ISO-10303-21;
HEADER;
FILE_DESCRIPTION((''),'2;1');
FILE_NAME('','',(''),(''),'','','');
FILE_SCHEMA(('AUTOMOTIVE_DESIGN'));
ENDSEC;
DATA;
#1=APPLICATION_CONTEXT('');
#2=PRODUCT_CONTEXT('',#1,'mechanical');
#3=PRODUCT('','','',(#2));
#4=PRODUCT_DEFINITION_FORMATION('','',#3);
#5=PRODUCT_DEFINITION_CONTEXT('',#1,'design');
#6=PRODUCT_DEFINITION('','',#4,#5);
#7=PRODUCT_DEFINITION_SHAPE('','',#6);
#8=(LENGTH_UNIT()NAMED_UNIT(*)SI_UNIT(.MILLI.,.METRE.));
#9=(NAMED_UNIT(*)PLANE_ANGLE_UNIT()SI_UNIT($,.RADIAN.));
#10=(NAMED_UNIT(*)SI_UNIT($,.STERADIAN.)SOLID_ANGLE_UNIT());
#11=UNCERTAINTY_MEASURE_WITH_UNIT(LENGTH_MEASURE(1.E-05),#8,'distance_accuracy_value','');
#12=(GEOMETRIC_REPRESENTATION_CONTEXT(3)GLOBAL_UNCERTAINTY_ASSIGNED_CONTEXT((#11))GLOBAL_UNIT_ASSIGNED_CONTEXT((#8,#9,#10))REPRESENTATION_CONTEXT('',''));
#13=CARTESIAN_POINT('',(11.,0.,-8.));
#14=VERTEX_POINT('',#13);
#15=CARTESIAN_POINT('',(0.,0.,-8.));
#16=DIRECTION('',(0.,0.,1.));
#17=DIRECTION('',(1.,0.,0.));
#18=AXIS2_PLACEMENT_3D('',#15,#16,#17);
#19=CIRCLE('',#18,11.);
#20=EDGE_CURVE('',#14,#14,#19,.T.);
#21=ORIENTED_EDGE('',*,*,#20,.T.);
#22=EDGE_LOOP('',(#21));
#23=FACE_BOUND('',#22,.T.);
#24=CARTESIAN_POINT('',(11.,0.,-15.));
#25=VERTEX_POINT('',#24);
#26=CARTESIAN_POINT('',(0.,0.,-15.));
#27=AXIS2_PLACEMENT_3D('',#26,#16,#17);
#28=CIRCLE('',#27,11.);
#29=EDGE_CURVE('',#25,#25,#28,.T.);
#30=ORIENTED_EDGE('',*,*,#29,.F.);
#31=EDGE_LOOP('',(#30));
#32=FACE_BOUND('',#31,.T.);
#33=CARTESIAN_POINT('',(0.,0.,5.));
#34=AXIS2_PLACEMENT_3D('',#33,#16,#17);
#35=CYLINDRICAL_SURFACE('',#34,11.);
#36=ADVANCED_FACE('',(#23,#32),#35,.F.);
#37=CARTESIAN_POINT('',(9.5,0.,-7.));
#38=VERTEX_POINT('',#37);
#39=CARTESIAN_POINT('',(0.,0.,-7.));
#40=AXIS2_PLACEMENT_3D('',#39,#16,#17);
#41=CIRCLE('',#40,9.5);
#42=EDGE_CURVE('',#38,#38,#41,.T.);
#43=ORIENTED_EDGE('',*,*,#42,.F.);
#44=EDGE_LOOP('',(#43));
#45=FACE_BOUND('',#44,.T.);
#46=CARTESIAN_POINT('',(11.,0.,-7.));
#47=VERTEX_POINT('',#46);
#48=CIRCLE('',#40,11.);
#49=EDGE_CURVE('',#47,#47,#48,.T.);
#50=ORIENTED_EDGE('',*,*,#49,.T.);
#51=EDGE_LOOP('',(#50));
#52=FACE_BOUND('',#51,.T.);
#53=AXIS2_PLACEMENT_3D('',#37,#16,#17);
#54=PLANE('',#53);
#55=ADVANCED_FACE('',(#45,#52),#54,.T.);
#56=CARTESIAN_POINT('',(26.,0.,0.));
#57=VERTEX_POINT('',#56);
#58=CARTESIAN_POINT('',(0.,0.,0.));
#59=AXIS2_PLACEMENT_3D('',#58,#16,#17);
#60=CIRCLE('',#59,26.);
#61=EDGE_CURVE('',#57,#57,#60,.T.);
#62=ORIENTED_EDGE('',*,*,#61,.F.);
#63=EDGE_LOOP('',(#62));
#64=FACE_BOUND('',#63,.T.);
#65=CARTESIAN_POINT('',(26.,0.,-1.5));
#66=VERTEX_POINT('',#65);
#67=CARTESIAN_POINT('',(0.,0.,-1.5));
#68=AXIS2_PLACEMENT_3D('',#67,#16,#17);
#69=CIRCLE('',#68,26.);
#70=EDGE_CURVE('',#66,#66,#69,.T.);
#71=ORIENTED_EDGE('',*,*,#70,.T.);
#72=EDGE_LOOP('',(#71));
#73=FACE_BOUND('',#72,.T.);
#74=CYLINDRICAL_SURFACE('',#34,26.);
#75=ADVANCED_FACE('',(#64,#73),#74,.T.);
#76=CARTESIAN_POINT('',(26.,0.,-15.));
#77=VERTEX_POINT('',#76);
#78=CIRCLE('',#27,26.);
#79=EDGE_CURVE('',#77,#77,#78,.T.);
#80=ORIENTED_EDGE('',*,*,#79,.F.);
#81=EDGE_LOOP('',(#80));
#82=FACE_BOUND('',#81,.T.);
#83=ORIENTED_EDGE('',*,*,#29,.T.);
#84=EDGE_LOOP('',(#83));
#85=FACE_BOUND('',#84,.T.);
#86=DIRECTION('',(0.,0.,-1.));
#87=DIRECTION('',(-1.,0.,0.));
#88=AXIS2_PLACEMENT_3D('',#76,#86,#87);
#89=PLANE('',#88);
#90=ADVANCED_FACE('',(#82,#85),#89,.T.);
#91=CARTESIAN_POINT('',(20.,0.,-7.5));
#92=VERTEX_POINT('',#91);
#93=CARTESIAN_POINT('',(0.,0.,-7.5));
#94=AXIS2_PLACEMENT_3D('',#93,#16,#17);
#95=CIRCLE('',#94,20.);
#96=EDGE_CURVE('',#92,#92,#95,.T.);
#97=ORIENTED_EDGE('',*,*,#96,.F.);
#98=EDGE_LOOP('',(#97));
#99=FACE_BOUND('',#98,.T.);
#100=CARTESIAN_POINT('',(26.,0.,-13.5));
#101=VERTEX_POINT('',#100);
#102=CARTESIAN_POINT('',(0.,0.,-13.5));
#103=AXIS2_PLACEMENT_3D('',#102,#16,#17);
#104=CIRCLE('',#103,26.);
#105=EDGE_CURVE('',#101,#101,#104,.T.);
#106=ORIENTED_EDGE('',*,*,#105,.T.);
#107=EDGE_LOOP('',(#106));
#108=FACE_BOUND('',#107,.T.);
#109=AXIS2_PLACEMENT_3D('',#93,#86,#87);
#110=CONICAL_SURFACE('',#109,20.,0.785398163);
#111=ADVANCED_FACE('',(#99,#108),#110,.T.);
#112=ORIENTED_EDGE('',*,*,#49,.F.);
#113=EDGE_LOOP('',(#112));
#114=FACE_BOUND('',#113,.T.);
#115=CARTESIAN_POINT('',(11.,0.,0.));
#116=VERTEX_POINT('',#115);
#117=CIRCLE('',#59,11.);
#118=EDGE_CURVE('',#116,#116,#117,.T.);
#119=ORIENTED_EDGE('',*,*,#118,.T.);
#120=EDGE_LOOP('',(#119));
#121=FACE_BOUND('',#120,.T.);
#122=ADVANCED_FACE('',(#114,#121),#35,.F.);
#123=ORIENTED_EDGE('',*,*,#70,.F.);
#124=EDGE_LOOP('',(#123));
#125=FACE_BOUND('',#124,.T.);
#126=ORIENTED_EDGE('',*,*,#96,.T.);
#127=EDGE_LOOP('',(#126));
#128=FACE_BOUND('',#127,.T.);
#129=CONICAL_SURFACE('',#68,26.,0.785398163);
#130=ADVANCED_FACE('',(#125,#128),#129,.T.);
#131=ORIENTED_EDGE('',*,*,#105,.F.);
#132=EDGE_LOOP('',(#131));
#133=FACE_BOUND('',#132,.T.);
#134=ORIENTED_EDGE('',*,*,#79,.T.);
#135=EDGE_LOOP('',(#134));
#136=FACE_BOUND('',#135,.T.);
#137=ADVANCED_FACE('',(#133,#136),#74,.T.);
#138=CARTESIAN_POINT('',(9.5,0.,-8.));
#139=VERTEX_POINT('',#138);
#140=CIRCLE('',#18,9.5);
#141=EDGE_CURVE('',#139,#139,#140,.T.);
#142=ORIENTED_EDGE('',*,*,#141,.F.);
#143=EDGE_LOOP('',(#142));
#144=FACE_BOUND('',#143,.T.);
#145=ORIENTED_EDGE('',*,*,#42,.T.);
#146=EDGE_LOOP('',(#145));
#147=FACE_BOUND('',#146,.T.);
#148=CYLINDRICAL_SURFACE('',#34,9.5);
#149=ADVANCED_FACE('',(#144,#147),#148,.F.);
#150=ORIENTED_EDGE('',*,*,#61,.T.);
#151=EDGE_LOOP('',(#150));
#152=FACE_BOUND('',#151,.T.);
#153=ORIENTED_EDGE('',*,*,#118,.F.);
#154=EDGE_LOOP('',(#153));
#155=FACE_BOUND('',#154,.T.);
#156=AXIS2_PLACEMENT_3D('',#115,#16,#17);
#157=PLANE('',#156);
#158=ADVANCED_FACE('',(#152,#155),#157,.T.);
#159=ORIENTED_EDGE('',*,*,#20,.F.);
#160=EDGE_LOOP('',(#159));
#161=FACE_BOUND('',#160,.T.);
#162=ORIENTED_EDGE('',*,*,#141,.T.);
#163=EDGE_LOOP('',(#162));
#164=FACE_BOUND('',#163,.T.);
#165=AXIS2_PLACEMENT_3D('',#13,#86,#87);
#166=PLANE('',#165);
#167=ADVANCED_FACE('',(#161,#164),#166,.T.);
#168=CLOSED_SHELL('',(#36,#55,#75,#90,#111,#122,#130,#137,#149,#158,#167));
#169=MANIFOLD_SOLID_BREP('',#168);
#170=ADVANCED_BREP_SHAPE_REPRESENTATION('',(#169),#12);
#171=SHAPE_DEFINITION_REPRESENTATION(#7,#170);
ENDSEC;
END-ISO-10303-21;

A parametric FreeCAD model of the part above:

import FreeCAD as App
import Part
import Sketcher


def add_polygon(sketch, points):
    """Adds a closed chain of lines whose ends are joined by coincident constraints."""
    first, n = sketch.GeometryCount, len(points)
    for a, b in zip(points, points[1:] + points[:1]):
        sketch.addGeometry(Part.LineSegment(App.Vector(*a, 0), App.Vector(*b, 0)), False)
    for i in range(n):
        sketch.addConstraint(Sketcher.Constraint("Coincident", first + i, 2, first + (i + 1) % n, 1))

doc = App.newDocument("Part")
body = doc.addObject("PartDesign::Body", "Body")

sketch1 = doc.addObject("Sketcher::SketchObject", "Sketch")
body.addObject(sketch1)
sketch1.AttachmentSupport = (doc.XZ_Plane, [""])
sketch1.MapMode = "FlatFace"
add_polygon(sketch1, [(11, 0), (26, 0), (26, -1.5), (20, -7.5), (26, -13.5), (26, -15), (11, -15), (11, -8), (9.5, -8), (9.5, -7), (11, -7)])
sketch1.addConstraint([
    Sketcher.Constraint("Horizontal", 0),
    Sketcher.Constraint("Vertical", 1),
    Sketcher.Constraint("Vertical", 4),
    Sketcher.Constraint("Horizontal", 5),
    Sketcher.Constraint("Vertical", 6),
    Sketcher.Constraint("Horizontal", 7),
    Sketcher.Constraint("Vertical", 8),
    Sketcher.Constraint("Horizontal", 9),
    Sketcher.Constraint("Vertical", 10),
    Sketcher.Constraint("PointOnObject", 0, 2, -1),
    Sketcher.Constraint("Perpendicular", 2, 3),
    Sketcher.Constraint("Vertical", 1, 2, 3, 2),
    Sketcher.Constraint("Vertical", 6, 2, 9, 2),
    Sketcher.Constraint("Equal", 9, 1),
    Sketcher.Constraint("Equal", 1, 4),
    Sketcher.Constraint("Equal", 6, 10),
    Sketcher.Constraint("Equal", 2, 3),
    Sketcher.Constraint("DistanceX", 0, 1, 0, 2, 15.0),
    Sketcher.Constraint("DistanceY", 6, 1, 6, 2, 7.0),
    Sketcher.Constraint("DistanceY", 8, 1, 8, 2, 1.0),
    Sketcher.Constraint("DistanceX", 7, 2, 7, 1, 1.5),
    Sketcher.Constraint("DistanceX", -1, 1, 0, 2, 26.0),
])
revolution = doc.addObject("PartDesign::Revolution", "Revolution")
body.addObject(revolution)
revolution.Profile = sketch1
revolution.ReferenceAxis = (sketch1, ["V_Axis"])
revolution.Angle = 360

doc.recompute()
